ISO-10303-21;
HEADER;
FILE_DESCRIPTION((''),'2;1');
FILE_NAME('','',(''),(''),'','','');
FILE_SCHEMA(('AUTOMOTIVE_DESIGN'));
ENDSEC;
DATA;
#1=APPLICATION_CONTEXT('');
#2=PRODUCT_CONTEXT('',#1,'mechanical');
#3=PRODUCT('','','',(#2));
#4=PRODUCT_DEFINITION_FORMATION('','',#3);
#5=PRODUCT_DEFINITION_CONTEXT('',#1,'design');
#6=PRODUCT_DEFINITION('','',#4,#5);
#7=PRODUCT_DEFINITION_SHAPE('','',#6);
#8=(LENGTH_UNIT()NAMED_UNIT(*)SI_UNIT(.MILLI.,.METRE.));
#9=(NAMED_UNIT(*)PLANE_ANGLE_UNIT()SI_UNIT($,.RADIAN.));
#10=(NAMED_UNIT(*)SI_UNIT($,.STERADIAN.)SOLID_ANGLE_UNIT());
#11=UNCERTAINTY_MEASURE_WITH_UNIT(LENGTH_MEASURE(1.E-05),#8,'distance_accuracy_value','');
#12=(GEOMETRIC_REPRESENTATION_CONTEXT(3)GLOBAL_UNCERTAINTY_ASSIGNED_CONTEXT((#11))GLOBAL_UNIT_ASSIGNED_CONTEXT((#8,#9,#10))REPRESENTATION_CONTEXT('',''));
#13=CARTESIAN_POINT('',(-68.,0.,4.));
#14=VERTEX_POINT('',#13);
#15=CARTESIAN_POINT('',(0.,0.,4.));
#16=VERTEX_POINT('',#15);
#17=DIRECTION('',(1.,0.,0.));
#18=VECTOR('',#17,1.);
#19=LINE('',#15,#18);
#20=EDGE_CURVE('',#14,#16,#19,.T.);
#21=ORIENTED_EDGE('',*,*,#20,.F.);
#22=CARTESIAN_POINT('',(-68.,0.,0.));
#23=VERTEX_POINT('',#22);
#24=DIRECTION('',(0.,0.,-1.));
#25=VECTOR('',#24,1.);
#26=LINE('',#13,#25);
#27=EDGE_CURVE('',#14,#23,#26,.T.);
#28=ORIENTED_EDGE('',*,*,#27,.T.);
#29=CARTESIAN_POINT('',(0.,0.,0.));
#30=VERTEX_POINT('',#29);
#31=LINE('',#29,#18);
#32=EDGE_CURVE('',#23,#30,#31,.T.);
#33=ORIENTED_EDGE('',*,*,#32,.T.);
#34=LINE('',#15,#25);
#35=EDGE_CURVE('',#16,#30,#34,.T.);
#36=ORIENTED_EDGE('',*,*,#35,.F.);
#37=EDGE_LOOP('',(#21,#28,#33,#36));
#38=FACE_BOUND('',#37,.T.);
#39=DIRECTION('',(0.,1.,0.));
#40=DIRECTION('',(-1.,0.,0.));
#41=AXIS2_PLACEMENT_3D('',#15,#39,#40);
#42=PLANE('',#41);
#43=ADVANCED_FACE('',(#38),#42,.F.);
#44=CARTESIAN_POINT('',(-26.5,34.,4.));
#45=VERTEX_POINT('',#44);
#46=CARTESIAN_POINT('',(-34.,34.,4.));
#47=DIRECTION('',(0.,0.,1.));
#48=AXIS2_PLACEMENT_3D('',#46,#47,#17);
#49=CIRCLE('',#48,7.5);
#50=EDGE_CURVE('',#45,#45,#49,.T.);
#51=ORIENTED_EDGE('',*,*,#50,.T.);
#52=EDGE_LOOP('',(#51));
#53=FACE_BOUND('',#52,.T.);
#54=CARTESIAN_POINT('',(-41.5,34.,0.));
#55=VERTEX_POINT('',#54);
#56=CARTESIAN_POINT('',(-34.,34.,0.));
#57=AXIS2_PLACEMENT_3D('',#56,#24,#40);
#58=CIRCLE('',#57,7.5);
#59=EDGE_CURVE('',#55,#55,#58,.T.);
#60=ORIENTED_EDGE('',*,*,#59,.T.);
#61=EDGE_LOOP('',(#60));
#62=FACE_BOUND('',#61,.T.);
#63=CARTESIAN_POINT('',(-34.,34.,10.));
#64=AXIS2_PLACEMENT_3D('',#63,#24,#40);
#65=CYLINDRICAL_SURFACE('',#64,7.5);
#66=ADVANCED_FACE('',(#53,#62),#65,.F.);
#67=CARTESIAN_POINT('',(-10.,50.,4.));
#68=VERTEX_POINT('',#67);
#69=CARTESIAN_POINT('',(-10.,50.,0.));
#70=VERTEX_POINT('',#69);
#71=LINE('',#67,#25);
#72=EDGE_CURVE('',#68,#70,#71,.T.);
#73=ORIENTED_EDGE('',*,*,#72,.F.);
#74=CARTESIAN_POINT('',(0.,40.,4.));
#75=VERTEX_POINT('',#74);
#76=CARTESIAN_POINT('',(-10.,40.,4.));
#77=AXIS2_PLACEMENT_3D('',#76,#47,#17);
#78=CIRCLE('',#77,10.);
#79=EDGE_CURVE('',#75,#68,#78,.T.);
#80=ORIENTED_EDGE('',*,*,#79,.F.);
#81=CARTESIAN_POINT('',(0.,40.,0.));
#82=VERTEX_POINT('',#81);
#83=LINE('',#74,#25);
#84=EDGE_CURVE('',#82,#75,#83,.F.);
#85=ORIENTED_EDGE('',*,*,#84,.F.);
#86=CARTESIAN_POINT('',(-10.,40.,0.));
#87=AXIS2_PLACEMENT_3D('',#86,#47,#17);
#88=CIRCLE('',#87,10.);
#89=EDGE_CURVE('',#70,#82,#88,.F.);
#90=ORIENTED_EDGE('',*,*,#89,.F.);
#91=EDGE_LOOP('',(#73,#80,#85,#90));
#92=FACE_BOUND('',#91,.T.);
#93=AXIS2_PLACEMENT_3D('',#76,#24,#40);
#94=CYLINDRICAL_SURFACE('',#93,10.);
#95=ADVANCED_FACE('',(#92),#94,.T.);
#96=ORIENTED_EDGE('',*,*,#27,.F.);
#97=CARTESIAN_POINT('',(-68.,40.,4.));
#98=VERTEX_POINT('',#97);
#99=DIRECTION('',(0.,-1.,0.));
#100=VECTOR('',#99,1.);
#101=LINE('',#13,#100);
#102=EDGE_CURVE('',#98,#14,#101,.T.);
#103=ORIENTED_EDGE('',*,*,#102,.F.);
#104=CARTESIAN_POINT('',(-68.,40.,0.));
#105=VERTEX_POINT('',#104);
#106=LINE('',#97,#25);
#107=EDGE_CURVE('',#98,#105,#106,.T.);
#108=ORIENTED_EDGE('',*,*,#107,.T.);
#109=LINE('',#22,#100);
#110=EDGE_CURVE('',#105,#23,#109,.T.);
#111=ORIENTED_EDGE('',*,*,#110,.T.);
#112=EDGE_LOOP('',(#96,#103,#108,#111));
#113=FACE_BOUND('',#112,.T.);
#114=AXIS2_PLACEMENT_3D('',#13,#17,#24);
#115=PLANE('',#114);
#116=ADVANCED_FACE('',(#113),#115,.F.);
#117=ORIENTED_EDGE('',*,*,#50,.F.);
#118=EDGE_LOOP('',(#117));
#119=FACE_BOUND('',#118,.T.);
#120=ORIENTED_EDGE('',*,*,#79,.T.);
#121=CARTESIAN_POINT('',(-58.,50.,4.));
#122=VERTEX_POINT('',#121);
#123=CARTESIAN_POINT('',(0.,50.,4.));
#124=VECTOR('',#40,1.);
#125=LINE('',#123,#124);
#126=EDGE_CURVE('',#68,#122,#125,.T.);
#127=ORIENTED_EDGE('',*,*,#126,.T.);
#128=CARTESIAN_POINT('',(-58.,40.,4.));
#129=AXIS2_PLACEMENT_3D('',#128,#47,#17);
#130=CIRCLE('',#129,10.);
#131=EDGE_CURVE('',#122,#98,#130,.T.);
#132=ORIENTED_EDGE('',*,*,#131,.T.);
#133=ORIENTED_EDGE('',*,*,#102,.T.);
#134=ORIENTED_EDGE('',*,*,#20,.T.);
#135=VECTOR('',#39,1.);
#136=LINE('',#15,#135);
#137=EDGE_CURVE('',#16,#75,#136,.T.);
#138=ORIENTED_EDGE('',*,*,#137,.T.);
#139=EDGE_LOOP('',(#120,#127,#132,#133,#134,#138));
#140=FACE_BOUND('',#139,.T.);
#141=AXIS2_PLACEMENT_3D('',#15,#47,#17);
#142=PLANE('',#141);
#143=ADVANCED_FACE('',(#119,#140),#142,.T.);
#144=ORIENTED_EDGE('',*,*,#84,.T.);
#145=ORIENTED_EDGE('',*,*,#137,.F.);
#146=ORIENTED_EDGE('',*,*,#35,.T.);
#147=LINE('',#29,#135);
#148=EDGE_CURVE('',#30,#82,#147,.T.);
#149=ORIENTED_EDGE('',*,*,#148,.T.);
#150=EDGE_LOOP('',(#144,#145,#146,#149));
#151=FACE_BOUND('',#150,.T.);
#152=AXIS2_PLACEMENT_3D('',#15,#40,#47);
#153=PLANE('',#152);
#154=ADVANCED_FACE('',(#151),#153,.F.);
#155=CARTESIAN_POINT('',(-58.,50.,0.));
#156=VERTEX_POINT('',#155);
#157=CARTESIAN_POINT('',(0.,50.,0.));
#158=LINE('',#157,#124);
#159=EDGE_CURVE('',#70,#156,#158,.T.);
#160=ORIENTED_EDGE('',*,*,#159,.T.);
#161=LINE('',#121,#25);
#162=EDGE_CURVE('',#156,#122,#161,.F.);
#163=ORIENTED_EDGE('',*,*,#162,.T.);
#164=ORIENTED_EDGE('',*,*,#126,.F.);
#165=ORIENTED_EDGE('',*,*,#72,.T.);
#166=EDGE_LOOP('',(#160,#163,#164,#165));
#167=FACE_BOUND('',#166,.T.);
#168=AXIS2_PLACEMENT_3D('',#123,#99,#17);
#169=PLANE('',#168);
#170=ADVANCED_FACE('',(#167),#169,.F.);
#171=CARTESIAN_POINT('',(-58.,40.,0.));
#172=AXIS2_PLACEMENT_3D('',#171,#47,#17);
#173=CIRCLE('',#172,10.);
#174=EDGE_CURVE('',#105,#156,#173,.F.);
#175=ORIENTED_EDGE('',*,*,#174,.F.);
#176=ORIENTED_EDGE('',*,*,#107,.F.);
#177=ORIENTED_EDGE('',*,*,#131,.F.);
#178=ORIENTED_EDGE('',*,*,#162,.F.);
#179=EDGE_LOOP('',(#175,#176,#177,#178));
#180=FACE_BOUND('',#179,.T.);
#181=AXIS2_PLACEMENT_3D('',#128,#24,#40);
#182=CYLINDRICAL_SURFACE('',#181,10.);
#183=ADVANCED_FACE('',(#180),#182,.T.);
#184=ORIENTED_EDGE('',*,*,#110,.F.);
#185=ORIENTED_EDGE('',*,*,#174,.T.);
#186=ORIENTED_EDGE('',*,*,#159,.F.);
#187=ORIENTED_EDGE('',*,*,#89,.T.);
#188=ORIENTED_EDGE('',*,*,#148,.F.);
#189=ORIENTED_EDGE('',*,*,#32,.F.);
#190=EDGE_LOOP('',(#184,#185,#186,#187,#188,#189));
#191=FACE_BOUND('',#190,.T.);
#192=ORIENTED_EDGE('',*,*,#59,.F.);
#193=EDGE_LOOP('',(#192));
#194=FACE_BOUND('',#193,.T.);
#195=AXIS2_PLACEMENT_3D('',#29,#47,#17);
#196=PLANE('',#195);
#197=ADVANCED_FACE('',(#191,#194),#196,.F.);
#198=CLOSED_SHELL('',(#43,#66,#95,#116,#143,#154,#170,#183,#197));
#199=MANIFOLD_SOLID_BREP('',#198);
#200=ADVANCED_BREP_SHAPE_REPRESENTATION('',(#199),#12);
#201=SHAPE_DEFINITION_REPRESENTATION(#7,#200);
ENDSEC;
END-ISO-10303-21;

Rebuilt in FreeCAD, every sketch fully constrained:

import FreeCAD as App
import Part
import Sketcher

V = App.Vector
Q = App.Units.Quantity


def edges_at(feature, points):
    """Names of the edges that pass closest to the given points."""
    edges = feature.Shape.Edges
    near = lambda p: min(range(len(edges)), key=lambda i: edges[i].distToShape(Part.Vertex(*p))[0])
    return sorted({f"Edge{near(p) + 1}" for p in points})


def add_polygon(sketch, points):
    """Adds a closed chain of lines whose ends are joined by coincident constraints."""
    first, n = sketch.GeometryCount, len(points)
    for a, b in zip(points, points[1:] + points[:1]):
        sketch.addGeometry(Part.LineSegment(App.Vector(*a, 0), App.Vector(*b, 0)), False)
    for i in range(n):
        sketch.addConstraint(Sketcher.Constraint("Coincident", first + i, 2, first + (i + 1) % n, 1))

doc = App.newDocument("Part")
body = doc.addObject("PartDesign::Body", "Body")

# Sketch on XY plane
sketch1 = doc.addObject("Sketcher::SketchObject", "Sketch")
body.addObject(sketch1)
sketch1.AttachmentSupport = (doc.XY_Plane, [""])
sketch1.MapMode = "FlatFace"
add_polygon(sketch1, [(-68, 50), (-68, 0), (0, 0), (0, 50)])  # lines 0-3
sketch1.addConstraint(Sketcher.Constraint("Vertical", 0))
sketch1.addConstraint(Sketcher.Constraint("Horizontal", 1))
sketch1.addConstraint(Sketcher.Constraint("Vertical", 2))
sketch1.addConstraint(Sketcher.Constraint("Horizontal", 3))
sketch1.addConstraint(Sketcher.Constraint("Coincident", 1, 2, -1, 1))
sketch1.addConstraint(Sketcher.Constraint("DistanceX", 1, 1, 1, 2, Q("68 mm")))
sketch1.addConstraint(Sketcher.Constraint("DistanceY", 0, 2, 0, 1, Q("50 mm")))
pad1 = doc.addObject("PartDesign::Pad", "Pad")
body.addObject(pad1)
pad1.Profile = sketch1
pad1.Length = 4

# Sketch on XY plane
sketch2 = doc.addObject("Sketcher::SketchObject", "Sketch001")
body.addObject(sketch2)
sketch2.AttachmentSupport = (doc.XY_Plane, [""])
sketch2.MapMode = "FlatFace"
sketch2.addGeometry(Part.Circle(V(-34, 34, 0), V(0, 0, 1), 8), False)
sketch2.addConstraint(Sketcher.Constraint("Diameter", 0, Q("15 mm")))
sketch2.addConstraint(Sketcher.Constraint("DistanceX", 0, 3, -1, 1, Q("34 mm")))
sketch2.addConstraint(Sketcher.Constraint("DistanceY", -1, 1, 0, 3, Q("34 mm")))
pocket1 = doc.addObject("PartDesign::Pocket", "Pocket")
body.addObject(pocket1)
pocket1.Profile = sketch2
pocket1.Length = 10
pocket1.Reversed = True
doc.recompute()

fillet = doc.addObject("PartDesign::Fillet", "Fillet")
body.addObject(fillet)
fillet.Base = (pocket1, edges_at(pocket1, [(-68, 50, 2), (0, 50, 2)]))
fillet.Radius = 10

doc.recompute()
